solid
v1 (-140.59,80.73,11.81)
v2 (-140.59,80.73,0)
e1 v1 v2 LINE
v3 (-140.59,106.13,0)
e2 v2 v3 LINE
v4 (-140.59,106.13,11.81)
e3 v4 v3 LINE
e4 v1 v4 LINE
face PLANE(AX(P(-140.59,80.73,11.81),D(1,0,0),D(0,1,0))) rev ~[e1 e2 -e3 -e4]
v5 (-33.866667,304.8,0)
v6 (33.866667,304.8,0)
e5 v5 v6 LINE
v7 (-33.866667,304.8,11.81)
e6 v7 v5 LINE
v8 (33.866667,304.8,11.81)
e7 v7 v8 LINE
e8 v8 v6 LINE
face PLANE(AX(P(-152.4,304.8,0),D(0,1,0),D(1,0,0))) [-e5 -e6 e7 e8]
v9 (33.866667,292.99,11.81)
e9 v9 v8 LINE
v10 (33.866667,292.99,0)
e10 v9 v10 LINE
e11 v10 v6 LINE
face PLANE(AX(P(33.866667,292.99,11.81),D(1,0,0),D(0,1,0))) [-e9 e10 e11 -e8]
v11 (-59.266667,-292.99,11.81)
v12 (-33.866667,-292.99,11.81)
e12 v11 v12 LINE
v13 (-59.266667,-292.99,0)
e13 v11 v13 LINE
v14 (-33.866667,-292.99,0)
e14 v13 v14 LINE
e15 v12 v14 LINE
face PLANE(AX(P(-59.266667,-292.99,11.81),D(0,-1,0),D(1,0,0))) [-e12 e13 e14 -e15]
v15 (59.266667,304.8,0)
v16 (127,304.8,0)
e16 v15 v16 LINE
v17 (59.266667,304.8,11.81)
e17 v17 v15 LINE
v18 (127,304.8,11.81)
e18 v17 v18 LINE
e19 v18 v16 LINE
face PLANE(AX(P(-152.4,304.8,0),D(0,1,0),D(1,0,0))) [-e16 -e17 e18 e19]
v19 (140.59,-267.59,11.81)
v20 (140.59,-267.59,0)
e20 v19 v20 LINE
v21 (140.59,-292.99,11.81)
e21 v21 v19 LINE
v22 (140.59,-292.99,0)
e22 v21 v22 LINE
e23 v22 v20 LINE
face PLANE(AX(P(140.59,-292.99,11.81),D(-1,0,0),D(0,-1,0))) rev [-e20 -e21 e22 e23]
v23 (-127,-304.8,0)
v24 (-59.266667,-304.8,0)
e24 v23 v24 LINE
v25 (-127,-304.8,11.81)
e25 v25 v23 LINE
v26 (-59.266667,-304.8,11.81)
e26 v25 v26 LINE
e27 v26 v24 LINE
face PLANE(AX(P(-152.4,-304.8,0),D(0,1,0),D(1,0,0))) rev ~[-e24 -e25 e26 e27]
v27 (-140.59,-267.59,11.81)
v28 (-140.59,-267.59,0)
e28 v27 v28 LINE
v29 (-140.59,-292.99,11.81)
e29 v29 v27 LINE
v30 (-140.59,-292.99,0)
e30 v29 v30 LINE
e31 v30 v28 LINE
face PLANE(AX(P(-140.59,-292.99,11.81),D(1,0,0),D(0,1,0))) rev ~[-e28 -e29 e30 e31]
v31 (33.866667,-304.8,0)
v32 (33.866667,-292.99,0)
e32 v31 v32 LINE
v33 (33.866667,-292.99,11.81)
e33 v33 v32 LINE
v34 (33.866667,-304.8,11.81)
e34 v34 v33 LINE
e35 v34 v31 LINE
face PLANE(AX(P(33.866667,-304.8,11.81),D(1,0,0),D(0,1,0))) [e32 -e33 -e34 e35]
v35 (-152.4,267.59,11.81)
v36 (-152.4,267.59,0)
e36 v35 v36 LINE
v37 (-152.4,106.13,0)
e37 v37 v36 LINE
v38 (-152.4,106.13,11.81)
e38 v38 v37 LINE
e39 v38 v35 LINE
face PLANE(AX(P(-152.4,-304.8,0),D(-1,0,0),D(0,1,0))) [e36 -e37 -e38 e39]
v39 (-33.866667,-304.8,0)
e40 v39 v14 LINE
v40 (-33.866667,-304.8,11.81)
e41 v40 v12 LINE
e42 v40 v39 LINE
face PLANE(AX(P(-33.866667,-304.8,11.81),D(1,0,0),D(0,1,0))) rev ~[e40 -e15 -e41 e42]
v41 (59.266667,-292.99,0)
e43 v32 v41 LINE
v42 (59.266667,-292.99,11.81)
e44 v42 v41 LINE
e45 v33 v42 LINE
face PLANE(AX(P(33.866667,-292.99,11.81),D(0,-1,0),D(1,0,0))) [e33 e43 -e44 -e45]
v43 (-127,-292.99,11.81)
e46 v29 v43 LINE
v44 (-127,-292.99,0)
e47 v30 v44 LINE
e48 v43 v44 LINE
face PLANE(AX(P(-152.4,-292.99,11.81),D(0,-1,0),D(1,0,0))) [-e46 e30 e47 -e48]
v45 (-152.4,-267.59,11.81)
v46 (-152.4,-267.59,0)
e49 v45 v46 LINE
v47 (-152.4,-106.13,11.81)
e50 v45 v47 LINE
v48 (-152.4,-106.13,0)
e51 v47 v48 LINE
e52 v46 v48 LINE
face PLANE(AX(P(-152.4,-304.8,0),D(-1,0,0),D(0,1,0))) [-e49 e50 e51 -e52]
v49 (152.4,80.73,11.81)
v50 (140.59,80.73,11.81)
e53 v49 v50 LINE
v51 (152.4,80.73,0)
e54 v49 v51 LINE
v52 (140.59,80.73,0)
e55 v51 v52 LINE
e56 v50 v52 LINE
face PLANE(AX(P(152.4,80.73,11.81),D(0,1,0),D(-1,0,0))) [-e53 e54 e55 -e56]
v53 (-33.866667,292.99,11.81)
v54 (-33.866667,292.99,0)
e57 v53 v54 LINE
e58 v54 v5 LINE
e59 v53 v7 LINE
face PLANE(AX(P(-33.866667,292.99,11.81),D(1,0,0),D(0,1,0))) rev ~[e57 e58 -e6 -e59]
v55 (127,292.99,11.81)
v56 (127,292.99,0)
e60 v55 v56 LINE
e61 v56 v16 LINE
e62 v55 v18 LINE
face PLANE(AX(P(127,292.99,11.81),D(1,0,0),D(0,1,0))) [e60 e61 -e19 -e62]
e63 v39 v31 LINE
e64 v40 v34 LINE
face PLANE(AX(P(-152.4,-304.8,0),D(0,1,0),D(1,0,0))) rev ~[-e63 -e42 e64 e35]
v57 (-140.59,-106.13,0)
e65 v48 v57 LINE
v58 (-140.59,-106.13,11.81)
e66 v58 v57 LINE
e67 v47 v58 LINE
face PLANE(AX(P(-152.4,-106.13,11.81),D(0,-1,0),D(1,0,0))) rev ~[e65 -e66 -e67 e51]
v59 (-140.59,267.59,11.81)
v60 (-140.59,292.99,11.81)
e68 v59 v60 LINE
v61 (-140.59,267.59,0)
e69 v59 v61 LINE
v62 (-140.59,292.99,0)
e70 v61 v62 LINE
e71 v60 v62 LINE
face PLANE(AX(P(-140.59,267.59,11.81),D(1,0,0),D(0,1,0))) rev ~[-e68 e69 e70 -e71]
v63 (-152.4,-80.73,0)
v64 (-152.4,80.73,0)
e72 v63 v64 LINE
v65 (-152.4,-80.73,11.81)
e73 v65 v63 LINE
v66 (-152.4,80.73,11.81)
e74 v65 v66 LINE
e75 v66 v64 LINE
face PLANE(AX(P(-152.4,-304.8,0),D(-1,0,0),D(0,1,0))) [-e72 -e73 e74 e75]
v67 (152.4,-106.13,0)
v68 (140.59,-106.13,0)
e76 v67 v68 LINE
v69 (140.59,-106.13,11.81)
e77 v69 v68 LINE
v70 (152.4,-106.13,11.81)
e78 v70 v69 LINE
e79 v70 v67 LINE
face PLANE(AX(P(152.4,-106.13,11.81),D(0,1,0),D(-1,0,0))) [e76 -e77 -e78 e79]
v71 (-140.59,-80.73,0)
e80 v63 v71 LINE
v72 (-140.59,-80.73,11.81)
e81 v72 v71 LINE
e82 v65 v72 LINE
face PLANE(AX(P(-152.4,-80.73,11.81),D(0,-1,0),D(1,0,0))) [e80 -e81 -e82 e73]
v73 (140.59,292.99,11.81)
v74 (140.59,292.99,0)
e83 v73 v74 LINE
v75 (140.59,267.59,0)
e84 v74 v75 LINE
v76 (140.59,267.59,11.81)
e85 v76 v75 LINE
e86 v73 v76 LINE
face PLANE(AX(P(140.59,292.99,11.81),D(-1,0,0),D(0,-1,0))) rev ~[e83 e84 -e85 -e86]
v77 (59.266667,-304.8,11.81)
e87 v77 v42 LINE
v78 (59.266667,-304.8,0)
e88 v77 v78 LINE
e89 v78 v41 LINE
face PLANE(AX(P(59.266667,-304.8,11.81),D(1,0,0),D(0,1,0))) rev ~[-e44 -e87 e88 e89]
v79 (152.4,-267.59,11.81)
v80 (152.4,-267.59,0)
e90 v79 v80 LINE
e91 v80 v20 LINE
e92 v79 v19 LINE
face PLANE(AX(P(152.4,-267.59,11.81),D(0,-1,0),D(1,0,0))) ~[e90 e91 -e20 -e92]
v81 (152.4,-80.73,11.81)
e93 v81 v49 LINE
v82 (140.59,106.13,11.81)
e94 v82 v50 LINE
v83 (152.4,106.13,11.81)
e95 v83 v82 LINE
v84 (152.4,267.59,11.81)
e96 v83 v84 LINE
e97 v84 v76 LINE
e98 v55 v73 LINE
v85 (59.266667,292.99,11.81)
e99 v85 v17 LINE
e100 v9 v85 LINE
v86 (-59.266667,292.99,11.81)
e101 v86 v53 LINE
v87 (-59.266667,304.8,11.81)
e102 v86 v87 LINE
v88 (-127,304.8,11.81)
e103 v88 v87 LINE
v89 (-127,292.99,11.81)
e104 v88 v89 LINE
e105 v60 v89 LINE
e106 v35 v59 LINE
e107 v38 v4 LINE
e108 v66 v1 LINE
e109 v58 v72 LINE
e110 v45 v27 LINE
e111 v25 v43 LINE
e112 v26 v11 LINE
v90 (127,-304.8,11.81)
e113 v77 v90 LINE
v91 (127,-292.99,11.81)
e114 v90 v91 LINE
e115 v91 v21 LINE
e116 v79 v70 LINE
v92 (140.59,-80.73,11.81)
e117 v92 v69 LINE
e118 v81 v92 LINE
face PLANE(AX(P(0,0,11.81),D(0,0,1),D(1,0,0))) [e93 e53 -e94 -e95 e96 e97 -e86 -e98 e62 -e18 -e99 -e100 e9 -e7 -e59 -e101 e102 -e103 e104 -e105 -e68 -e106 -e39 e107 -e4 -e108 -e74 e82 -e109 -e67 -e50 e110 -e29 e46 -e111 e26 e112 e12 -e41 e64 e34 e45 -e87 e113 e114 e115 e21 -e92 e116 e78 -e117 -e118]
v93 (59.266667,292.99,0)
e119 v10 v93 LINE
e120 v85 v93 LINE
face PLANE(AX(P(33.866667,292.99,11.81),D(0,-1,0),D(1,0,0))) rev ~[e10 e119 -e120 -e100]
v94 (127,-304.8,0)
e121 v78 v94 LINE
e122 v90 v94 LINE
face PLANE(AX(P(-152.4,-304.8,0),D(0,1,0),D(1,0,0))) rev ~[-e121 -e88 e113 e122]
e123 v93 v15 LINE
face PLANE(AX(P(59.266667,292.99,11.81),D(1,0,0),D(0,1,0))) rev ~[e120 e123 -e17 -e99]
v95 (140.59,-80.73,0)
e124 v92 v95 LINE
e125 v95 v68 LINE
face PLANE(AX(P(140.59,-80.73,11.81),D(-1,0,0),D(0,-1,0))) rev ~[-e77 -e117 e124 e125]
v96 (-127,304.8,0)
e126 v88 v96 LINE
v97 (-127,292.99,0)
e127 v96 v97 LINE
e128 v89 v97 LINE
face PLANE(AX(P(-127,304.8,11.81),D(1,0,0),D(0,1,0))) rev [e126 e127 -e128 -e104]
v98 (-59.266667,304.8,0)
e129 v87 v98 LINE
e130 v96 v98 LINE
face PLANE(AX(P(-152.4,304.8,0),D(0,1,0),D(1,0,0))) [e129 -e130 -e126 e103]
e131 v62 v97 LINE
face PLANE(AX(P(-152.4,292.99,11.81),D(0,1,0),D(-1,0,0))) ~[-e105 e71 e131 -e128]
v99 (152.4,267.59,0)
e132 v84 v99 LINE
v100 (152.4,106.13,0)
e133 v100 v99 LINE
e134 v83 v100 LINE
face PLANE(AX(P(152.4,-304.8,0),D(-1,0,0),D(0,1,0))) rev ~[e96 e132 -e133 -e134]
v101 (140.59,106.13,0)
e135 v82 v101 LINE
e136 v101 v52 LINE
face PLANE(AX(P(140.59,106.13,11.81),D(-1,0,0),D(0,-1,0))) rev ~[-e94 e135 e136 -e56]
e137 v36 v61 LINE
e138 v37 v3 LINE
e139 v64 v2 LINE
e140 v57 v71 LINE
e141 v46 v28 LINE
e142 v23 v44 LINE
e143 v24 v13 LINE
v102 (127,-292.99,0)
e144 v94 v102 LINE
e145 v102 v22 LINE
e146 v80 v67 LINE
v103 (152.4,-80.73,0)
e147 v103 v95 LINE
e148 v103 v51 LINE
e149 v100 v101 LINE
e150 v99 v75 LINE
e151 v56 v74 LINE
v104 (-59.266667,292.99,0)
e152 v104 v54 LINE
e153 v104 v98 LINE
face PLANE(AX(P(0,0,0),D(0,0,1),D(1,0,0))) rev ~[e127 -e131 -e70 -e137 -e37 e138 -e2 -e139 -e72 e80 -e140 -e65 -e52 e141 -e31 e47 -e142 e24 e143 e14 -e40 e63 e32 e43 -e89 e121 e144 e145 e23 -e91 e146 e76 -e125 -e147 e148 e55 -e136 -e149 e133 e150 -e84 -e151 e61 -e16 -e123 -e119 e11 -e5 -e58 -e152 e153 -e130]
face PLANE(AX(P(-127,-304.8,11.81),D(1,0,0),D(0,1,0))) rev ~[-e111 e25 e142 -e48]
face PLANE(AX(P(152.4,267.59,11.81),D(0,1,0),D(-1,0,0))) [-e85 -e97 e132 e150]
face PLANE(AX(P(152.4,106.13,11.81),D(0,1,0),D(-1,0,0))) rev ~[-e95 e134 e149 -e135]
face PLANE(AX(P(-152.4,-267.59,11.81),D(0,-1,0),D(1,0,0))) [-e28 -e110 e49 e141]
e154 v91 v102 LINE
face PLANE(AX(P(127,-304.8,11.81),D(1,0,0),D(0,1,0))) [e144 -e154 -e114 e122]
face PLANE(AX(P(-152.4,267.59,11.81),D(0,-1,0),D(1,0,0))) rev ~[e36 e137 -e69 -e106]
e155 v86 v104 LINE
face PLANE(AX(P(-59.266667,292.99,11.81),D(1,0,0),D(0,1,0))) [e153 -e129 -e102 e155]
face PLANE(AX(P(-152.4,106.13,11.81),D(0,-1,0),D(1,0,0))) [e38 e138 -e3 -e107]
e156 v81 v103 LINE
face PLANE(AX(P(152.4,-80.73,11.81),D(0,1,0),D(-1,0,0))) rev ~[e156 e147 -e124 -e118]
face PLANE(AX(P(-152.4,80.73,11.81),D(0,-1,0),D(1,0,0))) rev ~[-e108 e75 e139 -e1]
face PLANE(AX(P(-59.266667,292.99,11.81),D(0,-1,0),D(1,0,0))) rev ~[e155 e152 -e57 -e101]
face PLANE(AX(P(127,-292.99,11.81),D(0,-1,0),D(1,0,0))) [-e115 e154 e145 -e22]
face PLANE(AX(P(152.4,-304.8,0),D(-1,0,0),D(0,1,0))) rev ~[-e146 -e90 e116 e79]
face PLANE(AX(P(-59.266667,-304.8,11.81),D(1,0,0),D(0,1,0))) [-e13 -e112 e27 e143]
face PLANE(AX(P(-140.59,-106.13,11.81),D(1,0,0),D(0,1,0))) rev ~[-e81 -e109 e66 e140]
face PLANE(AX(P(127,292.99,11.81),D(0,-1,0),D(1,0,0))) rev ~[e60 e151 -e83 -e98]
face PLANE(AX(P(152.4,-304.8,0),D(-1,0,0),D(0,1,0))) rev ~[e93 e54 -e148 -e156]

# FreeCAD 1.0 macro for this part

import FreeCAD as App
import Part
import Sketcher
from FreeCAD import Vector
Q = App.Units.Quantity


def add_polygon(sketch, points):
    """Adds a closed chain of lines whose ends are joined by coincident constraints."""
    first, n = sketch.GeometryCount, len(points)
    for a, b in zip(points, points[1:] + points[:1]):
        sketch.addGeometry(Part.LineSegment(App.Vector(*a, 0), App.Vector(*b, 0)), False)
    for i in range(n):
        sketch.addConstraint(Sketcher.Constraint("Coincident", first + i, 2, first + (i + 1) % n, 1))

doc = App.newDocument("Part")
params = doc.addObject("Spreadsheet::Sheet", "Params")
for row, (alias, value) in enumerate([
    ("sketch1_width", "12 in"),
    ("sketch1_height", "24 in"),
    ("pad1_length", "11.81 mm"),
    ("sketch2_width", "1 in"),
    ("linearpattern_pitch", "93.133333 mm"),
    ("sketch3_width", "1 in"),
    ("sketch4_width", "1 in"),
    ("sketch5_width", "1 in"),
    ("sketch6_height", "1 in"),
    ("linearpattern2_pitch", "186.86 mm"),
    ("sketch7_height", "1 in"),
    ("sketch8_height", "1 in"),
    ("sketch9_height", "1 in"),
], start=1):
    params.set(f"A{row}", alias)
    params.set(f"B{row}", "=" + value)
    params.setAlias(f"B{row}", alias)

body = doc.addObject("PartDesign::Body", "Body")

# Sketch on XY plane
sketch1 = body.newObject("Sketcher::SketchObject", "Sketch")
sketch1.AttachmentSupport = (doc.getObject("XY_Plane"), [""])
sketch1.MapMode = "FlatFace"
add_polygon(sketch1, [(-152.4, 304.8), (-152.4, -304.8), (152.4, -304.8), (152.4, 304.8)])  # lines 0-3
sketch1.addConstraint(Sketcher.Constraint("Vertical", 0))
sketch1.addConstraint(Sketcher.Constraint("Horizontal", 1))
sketch1.addConstraint(Sketcher.Constraint("Vertical", 2))
sketch1.addConstraint(Sketcher.Constraint("Horizontal", 3))
sketch1.addConstraint(Sketcher.Constraint("Symmetric", 0, 2, 2, 2, -1, 1))
sketch1.addConstraint(Sketcher.Constraint("DistanceX", 1, 1, 1, 2, Q("12 in")))
sketch1.addConstraint(Sketcher.Constraint("DistanceY", 0, 2, 0, 1, Q("24 in")))
sketch1.setExpression("Constraints[9]", "Params.sketch1_width")
sketch1.setExpression("Constraints[10]", "Params.sketch1_height")
pad1 = body.newObject("PartDesign::Pad", "Pad")
pad1.Profile = sketch1
pad1.setExpression("Length", "Params.pad1_length")

# Sketch on XY plane
sketch2 = body.newObject("Sketcher::SketchObject", "Sketch001")
sketch2.AttachmentSupport = (doc.getObject("XY_Plane"), [""])
sketch2.MapMode = "FlatFace"
sketch2.AttachmentOffset = App.Placement(Vector(0, 0, 11.81), App.Rotation())
add_polygon(sketch2, [(-152.4, -292.99), (-152.4, -304.8), (-127, -304.8), (-127, -292.99)])  # lines 0-3
sketch2.addConstraint(Sketcher.Constraint("Vertical", 0))
sketch2.addConstraint(Sketcher.Constraint("Horizontal", 1))
sketch2.addConstraint(Sketcher.Constraint("Vertical", 2))
sketch2.addConstraint(Sketcher.Constraint("Horizontal", 3))
sketch2.addConstraint(Sketcher.Constraint("DistanceX", 1, 1, 1, 2, Q("1 in")))
sketch2.addConstraint(Sketcher.Constraint("DistanceX", 0, 2, -1, 1, Q("6 in")))
sketch2.addConstraint(Sketcher.Constraint("DistanceY", 0, 2, -1, 1, Q("12 in")))
sketch2.addConstraint(Sketcher.Constraint("DistanceY", 0, 2, 0, 1, Q("11.81 mm")))
sketch2.setExpression("Constraints[8]", "Params.sketch2_width")
pocket1 = body.newObject("PartDesign::Pocket", "Pocket")
pocket1.Profile = sketch2
pocket1.Type = "ThroughAll"
doc.recompute()

linearpattern = body.newObject("PartDesign::LinearPattern", "LinearPattern")
linearpattern.Originals = [pocket1]
linearpattern.Direction = (doc.getObject("X_Axis"), [""])
linearpattern.Mode = "offset"
linearpattern.setExpression("Offset", "Params.linearpattern_pitch")
linearpattern.Occurrences = 4
body.Tip = linearpattern
doc.recompute()

mirrored = body.newObject("PartDesign::Mirrored", "Mirrored")
mirrored.Originals = [pocket1]
mirrored.MirrorPlane = (doc.getObject("XZ_Plane"), [""])
body.Tip = mirrored

# Sketch on XY plane
sketch3 = body.newObject("Sketcher::SketchObject", "Sketch002")
sketch3.AttachmentSupport = (doc.getObject("XY_Plane"), [""])
sketch3.MapMode = "FlatFace"
sketch3.AttachmentOffset = App.Placement(Vector(0, 0, 11.81), App.Rotation())
add_polygon(sketch3, [(-59.266667, 304.8), (-59.266667, 292.99), (-33.866667, 292.99), (-33.866667, 304.8)])  # lines 0-3
sketch3.addConstraint(Sketcher.Constraint("Vertical", 0))
sketch3.addConstraint(Sketcher.Constraint("Horizontal", 1))
sketch3.addConstraint(Sketcher.Constraint("Vertical", 2))
sketch3.addConstraint(Sketcher.Constraint("Horizontal", 3))
sketch3.addConstraint(Sketcher.Constraint("DistanceX", 1, 1, 1, 2, Q("1 in")))
sketch3.addConstraint(Sketcher.Constraint("DistanceY", -1, 1, 2, 2, Q("12 in")))
sketch3.addConstraint(Sketcher.Constraint("DistanceY", 0, 2, 0, 1, Q("11.81 mm")))
sketch3.addConstraint(Sketcher.Constraint("DistanceX", 0, 2, -1, 1, Q("59.266667 mm")))
sketch3.setExpression("Constraints[8]", "Params.sketch3_width")
pocket2 = body.newObject("PartDesign::Pocket", "Pocket001")
pocket2.Profile = sketch3
pocket2.Type = "ThroughAll"

# Sketch on XY plane
sketch4 = body.newObject("Sketcher::SketchObject", "Sketch003")
sketch4.AttachmentSupport = (doc.getObject("XY_Plane"), [""])
sketch4.MapMode = "FlatFace"
sketch4.AttachmentOffset = App.Placement(Vector(0, 0, 11.81), App.Rotation())
add_polygon(sketch4, [(33.866667, 304.8), (33.866667, 292.99), (59.266667, 292.99), (59.266667, 304.8)])  # lines 0-3
sketch4.addConstraint(Sketcher.Constraint("Vertical", 0))
sketch4.addConstraint(Sketcher.Constraint("Horizontal", 1))
sketch4.addConstraint(Sketcher.Constraint("Vertical", 2))
sketch4.addConstraint(Sketcher.Constraint("Horizontal", 3))
sketch4.addConstraint(Sketcher.Constraint("DistanceX", 1, 1, 1, 2, Q("1 in")))
sketch4.addConstraint(Sketcher.Constraint("DistanceY", -1, 1, 2, 2, Q("12 in")))
sketch4.addConstraint(Sketcher.Constraint("DistanceY", 0, 2, 0, 1, Q("11.81 mm")))
sketch4.addConstraint(Sketcher.Constraint("DistanceX", -1, 1, 0, 2, Q("33.866667 mm")))
sketch4.setExpression("Constraints[8]", "Params.sketch4_width")
pocket3 = body.newObject("PartDesign::Pocket", "Pocket002")
pocket3.Profile = sketch4
pocket3.Type = "ThroughAll"

# Sketch on XY plane
sketch5 = body.newObject("Sketcher::SketchObject", "Sketch004")
sketch5.AttachmentSupport = (doc.getObject("XY_Plane"), [""])
sketch5.MapMode = "FlatFace"
sketch5.AttachmentOffset = App.Placement(Vector(0, 0, 11.81), App.Rotation())
add_polygon(sketch5, [(127, 304.8), (127, 292.99), (152.4, 292.99), (152.4, 304.8)])  # lines 0-3
sketch5.addConstraint(Sketcher.Constraint("Vertical", 0))
sketch5.addConstraint(Sketcher.Constraint("Horizontal", 1))
sketch5.addConstraint(Sketcher.Constraint("Vertical", 2))
sketch5.addConstraint(Sketcher.Constraint("Horizontal", 3))
sketch5.addConstraint(Sketcher.Constraint("DistanceX", 1, 1, 1, 2, Q("1 in")))
sketch5.addConstraint(Sketcher.Constraint("DistanceX", -1, 1, 0, 2, Q("5 in")))
sketch5.addConstraint(Sketcher.Constraint("DistanceY", -1, 1, 2, 2, Q("12 in")))
sketch5.addConstraint(Sketcher.Constraint("DistanceY", 0, 2, 0, 1, Q("11.81 mm")))
sketch5.setExpression("Constraints[8]", "Params.sketch5_width")
pocket4 = body.newObject("PartDesign::Pocket", "Pocket003")
pocket4.Profile = sketch5
pocket4.Type = "ThroughAll"

# Sketch on XY plane
sketch6 = body.newObject("Sketcher::SketchObject", "Sketch005")
sketch6.AttachmentSupport = (doc.getObject("XY_Plane"), [""])
sketch6.MapMode = "FlatFace"
sketch6.AttachmentOffset = App.Placement(Vector(0, 0, 11.81), App.Rotation())
add_polygon(sketch6, [(-152.4, -267.59), (-152.4, -292.99), (-140.59, -292.99), (-140.59, -267.59)])  # lines 0-3
sketch6.addConstraint(Sketcher.Constraint("Vertical", 0))
sketch6.addConstraint(Sketcher.Constraint("Horizontal", 1))
sketch6.addConstraint(Sketcher.Constraint("Vertical", 2))
sketch6.addConstraint(Sketcher.Constraint("Horizontal", 3))
sketch6.addConstraint(Sketcher.Constraint("DistanceY", 0, 2, 0, 1, Q("1 in")))
sketch6.addConstraint(Sketcher.Constraint("DistanceX", 0, 2, -1, 1, Q("6 in")))
sketch6.addConstraint(Sketcher.Constraint("DistanceX", 1, 1, 1, 2, Q("11.81 mm")))
sketch6.addConstraint(Sketcher.Constraint("DistanceY", 0, 2, -1, 1, Q("292.99 mm")))
sketch6.setExpression("Constraints[8]", "Params.sketch6_height")
pocket5 = body.newObject("PartDesign::Pocket", "Pocket004")
pocket5.Profile = sketch6
pocket5.Type = "ThroughAll"
doc.recompute()

linearpattern2 = body.newObject("PartDesign::LinearPattern", "LinearPattern001")
linearpattern2.Originals = [pocket5]
linearpattern2.Direction = (doc.getObject("Y_Axis"), [""])
linearpattern2.Mode = "offset"
linearpattern2.setExpression("Offset", "Params.linearpattern2_pitch")
linearpattern2.Occurrences = 4
body.Tip = linearpattern2
doc.recompute()

mirrored2 = body.newObject("PartDesign::Mirrored", "Mirrored001")
mirrored2.Originals = [pocket5]
mirrored2.MirrorPlane = (doc.getObject("YZ_Plane"), [""])
body.Tip = mirrored2

# Sketch on XY plane
sketch7 = body.newObject("Sketcher::SketchObject", "Sketch006")
sketch7.AttachmentSupport = (doc.getObject("XY_Plane"), [""])
sketch7.MapMode = "FlatFace"
sketch7.AttachmentOffset = App.Placement(Vector(0, 0, 11.81), App.Rotation())
add_polygon(sketch7, [(152.4, -106.13), (152.4, -80.73), (140.59, -80.73), (140.59, -106.13)])  # lines 0-3
sketch7.addConstraint(Sketcher.Constraint("Vertical", 0))
sketch7.addConstraint(Sketcher.Constraint("Horizontal", 1))
sketch7.addConstraint(Sketcher.Constraint("Vertical", 2))
sketch7.addConstraint(Sketcher.Constraint("Horizontal", 3))
sketch7.addConstraint(Sketcher.Constraint("DistanceY", 0, 1, 0, 2, Q("1 in")))
sketch7.addConstraint(Sketcher.Constraint("DistanceX", -1, 1, 0, 2, Q("6 in")))
sketch7.addConstraint(Sketcher.Constraint("DistanceX", 1, 2, 1, 1, Q("11.81 mm")))
sketch7.addConstraint(Sketcher.Constraint("DistanceY", 0, 2, -1, 1, Q("80.73 mm")))
sketch7.setExpression("Constraints[8]", "Params.sketch7_height")
pocket6 = body.newObject("PartDesign::Pocket", "Pocket005")
pocket6.Profile = sketch7
pocket6.Type = "ThroughAll"

# Sketch on XY plane
sketch8 = body.newObject("Sketcher::SketchObject", "Sketch007")
sketch8.AttachmentSupport = (doc.getObject("XY_Plane"), [""])
sketch8.MapMode = "FlatFace"
sketch8.AttachmentOffset = App.Placement(Vector(0, 0, 11.81), App.Rotation())
add_polygon(sketch8, [(152.4, 80.73), (152.4, 106.13), (140.59, 106.13), (140.59, 80.73)])  # lines 0-3
sketch8.addConstraint(Sketcher.Constraint("Vertical", 0))
sketch8.addConstraint(Sketcher.Constraint("Horizontal", 1))
sketch8.addConstraint(Sketcher.Constraint("Vertical", 2))
sketch8.addConstraint(Sketcher.Constraint("Horizontal", 3))
sketch8.addConstraint(Sketcher.Constraint("DistanceY", 0, 1, 0, 2, Q("1 in")))
sketch8.addConstraint(Sketcher.Constraint("DistanceX", -1, 1, 0, 2, Q("6 in")))
sketch8.addConstraint(Sketcher.Constraint("DistanceX", 1, 2, 1, 1, Q("11.81 mm")))
sketch8.addConstraint(Sketcher.Constraint("DistanceY", -1, 1, 0, 2, Q("106.13 mm")))
sketch8.setExpression("Constraints[8]", "Params.sketch8_height")
pocket7 = body.newObject("PartDesign::Pocket", "Pocket006")
pocket7.Profile = sketch8
pocket7.Type = "ThroughAll"

# Sketch on XY plane
sketch9 = body.newObject("Sketcher::SketchObject", "Sketch008")
sketch9.AttachmentSupport = (doc.getObject("XY_Plane"), [""])
sketch9.MapMode = "FlatFace"
sketch9.AttachmentOffset = App.Placement(Vector(0, 0, 11.81), App.Rotation())
add_polygon(sketch9, [(152.4, 267.59), (152.4, 292.99), (140.59, 292.99), (140.59, 267.59)])  # lines 0-3
sketch9.addConstraint(Sketcher.Constraint("Vertical", 0))
sketch9.addConstraint(Sketcher.Constraint("Horizontal", 1))
sketch9.addConstraint(Sketcher.Constraint("Vertical", 2))
sketch9.addConstraint(Sketcher.Constraint("Horizontal", 3))
sketch9.addConstraint(Sketcher.Constraint("DistanceY", 0, 1, 0, 2, Q("1 in")))
sketch9.addConstraint(Sketcher.Constraint("DistanceX", -1, 1, 0, 2, Q("6 in")))
sketch9.addConstraint(Sketcher.Constraint("DistanceX", 1, 2, 1, 1, Q("11.81 mm")))
sketch9.addConstraint(Sketcher.Constraint("DistanceY", -1, 1, 0, 2, Q("292.99 mm")))
sketch9.setExpression("Constraints[8]", "Params.sketch9_height")
pocket8 = body.newObject("PartDesign::Pocket", "Pocket007")
pocket8.Profile = sketch9
pocket8.Type = "ThroughAll"

doc.recompute()
